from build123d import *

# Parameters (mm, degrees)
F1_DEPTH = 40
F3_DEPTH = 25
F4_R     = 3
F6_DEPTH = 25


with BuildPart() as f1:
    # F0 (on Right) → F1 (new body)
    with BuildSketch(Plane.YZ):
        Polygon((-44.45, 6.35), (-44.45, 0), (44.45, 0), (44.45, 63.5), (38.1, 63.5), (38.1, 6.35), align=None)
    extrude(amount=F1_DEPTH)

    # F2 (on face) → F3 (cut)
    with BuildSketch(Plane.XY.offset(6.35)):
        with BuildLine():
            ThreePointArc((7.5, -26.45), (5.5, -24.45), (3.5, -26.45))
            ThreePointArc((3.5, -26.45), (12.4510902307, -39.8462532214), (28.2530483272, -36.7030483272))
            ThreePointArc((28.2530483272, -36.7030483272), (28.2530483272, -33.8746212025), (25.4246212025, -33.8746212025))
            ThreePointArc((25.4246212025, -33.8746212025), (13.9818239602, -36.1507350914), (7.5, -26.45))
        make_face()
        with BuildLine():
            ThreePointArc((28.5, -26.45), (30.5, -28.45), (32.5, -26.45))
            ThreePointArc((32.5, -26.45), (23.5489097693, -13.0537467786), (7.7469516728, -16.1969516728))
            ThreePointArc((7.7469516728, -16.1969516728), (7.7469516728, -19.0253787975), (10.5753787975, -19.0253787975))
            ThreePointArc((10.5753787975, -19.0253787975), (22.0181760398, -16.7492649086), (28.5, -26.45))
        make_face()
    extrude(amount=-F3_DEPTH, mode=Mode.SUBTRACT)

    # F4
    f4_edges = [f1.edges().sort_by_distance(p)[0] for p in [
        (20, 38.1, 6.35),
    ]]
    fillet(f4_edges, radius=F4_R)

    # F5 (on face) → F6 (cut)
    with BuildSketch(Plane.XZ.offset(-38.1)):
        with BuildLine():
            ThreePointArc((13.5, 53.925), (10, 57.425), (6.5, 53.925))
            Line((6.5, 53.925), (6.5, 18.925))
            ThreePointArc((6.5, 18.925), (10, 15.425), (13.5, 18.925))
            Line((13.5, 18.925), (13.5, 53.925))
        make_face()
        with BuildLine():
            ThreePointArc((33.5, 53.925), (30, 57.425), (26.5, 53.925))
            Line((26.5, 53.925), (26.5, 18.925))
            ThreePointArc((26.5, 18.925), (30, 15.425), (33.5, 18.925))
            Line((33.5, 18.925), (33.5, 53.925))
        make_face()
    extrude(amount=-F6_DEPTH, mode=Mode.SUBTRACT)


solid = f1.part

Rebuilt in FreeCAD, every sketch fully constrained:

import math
import FreeCAD as App
import Part
import Sketcher


def edges_at(feature, points):
    """Names of the edges that pass closest to the given points."""
    edges = feature.Shape.Edges
    near = lambda p: min(range(len(edges)), key=lambda i: edges[i].distToShape(Part.Vertex(*p))[0])
    return sorted({f"Edge{near(p) + 1}" for p in points})

doc = App.newDocument("Part")
body = doc.addObject("PartDesign::Body", "Body")

sketch1 = body.newObject("Sketcher::SketchObject", "Sketch")
sketch1.AttachmentSupport = (doc.getObject("YZ_Plane"), [""])
sketch1.MapMode = "FlatFace"
sketch1.addGeometry([
    Part.LineSegment(App.Vector(-44, 6, 0), App.Vector(-44, 0, 0)),
    Part.LineSegment(App.Vector(-44, 0, 0), App.Vector(44, 0, 0)),
    Part.LineSegment(App.Vector(44, 0, 0), App.Vector(44, 64, 0)),
    Part.LineSegment(App.Vector(44, 64, 0), App.Vector(38, 64, 0)),
    Part.LineSegment(App.Vector(38, 64, 0), App.Vector(38, 6, 0)),
    Part.LineSegment(App.Vector(38, 6, 0), App.Vector(-44, 6, 0)),
], False)
sketch1.addConstraint([
    Sketcher.Constraint("Coincident", 0, 2, 1, 1),
    Sketcher.Constraint("Coincident", 1, 2, 2, 1),
    Sketcher.Constraint("Coincident", 2, 2, 3, 1),
    Sketcher.Constraint("Coincident", 3, 2, 4, 1),
    Sketcher.Constraint("Coincident", 4, 2, 5, 1),
    Sketcher.Constraint("Coincident", 5, 2, 0, 1),
    Sketcher.Constraint("Vertical", 0),
    Sketcher.Constraint("Horizontal", 1),
    Sketcher.Constraint("Vertical", 2),
    Sketcher.Constraint("Horizontal", 3),
    Sketcher.Constraint("Vertical", 4),
    Sketcher.Constraint("Horizontal", 5),
    Sketcher.Constraint("Symmetric", 0, 2, 1, 2, -1, 1),
    Sketcher.Constraint("Equal", 3, 0),
    Sketcher.Constraint("DistanceX", 1, 1, 1, 2, 88.9),
    Sketcher.Constraint("DistanceY", 2, 1, 2, 2, 63.5),
    Sketcher.Constraint("DistanceX", 3, 2, 3, 1, 6.35),
])
pad1 = body.newObject("PartDesign::Pad", "Pad")
pad1.Profile = sketch1
pad1.Length = 40

sketch2 = body.newObject("Sketcher::SketchObject", "Sketch001")
sketch2.AttachmentSupport = (doc.getObject("XY_Plane"), [""])
sketch2.MapMode = "FlatFace"
sketch2.AttachmentOffset = App.Placement(App.Vector(0, 0, 6.35), App.Rotation())
sketch2.addGeometry([
    Part.ArcOfCircle(Part.Circle(App.Vector(5.5, -26.4, 0), App.Vector(0, 0, 1), 2), math.radians(0), math.radians(180)),
    Part.ArcOfCircle(Part.Circle(App.Vector(18, -26.4, 0), App.Vector(0, 0, 1), 14.5), math.radians(180), math.radians(315)),
    Part.ArcOfCircle(Part.Circle(App.Vector(26.8, -35.3, 0), App.Vector(0, 0, 1), 2), math.radians(-45), math.radians(135)),
    Part.ArcOfCircle(Part.Circle(App.Vector(18, -26.4, 0), App.Vector(0, 0, 1), 10.5), math.radians(180), math.radians(315)),
    Part.ArcOfCircle(Part.Circle(App.Vector(30.5, -26.4, 0), App.Vector(0, 0, 1), 2), math.radians(180), math.radians(360)),
    Part.ArcOfCircle(Part.Circle(App.Vector(18, -26.4, 0), App.Vector(0, 0, 1), 14.5), math.radians(0), math.radians(135)),
    Part.ArcOfCircle(Part.Circle(App.Vector(9.2, -17.6, 0), App.Vector(0, 0, 1), 2), math.radians(135), math.radians(315)),
    Part.ArcOfCircle(Part.Circle(App.Vector(18, -26.4, 0), App.Vector(0, 0, 1), 10.5), math.radians(0), math.radians(135)),
], False)
sketch2.addConstraint([
    Sketcher.Constraint("Tangent", 0, 2, 1, 1),
    Sketcher.Constraint("Tangent", 1, 2, 2, 1),
    Sketcher.Constraint("Tangent", 2, 2, 3, 2),
    Sketcher.Constraint("Tangent", 3, 1, 0, 1),
    Sketcher.Constraint("Tangent", 4, 2, 5, 1),
    Sketcher.Constraint("Tangent", 5, 2, 6, 1),
    Sketcher.Constraint("Tangent", 6, 2, 7, 2),
    Sketcher.Constraint("Tangent", 7, 1, 4, 1),
    Sketcher.Constraint("Coincident", 3, 3, 1, 3),
    Sketcher.Constraint("Coincident", 5, 3, 1, 3),
    Sketcher.Constraint("Coincident", 7, 3, 1, 3),
    Sketcher.Constraint("Equal", 2, 4),
    Sketcher.Constraint("Equal", 1, 5),
    Sketcher.Constraint("Horizontal", 0, 3, 1, 3),
    Sketcher.Constraint("Horizontal", 3, 3, 4, 3),
    Sketcher.Constraint("Radius", 0, 2.0),
    Sketcher.Constraint("Radius", 1, 14.5),
    Sketcher.Constraint("DistanceX", -1, 1, 1, 3, 18.0),
    Sketcher.Constraint("DistanceY", 0, 3, -1, 1, 26.45),
    Sketcher.Constraint("DistanceX", -1, 1, 1, 2, 28.253048),
    Sketcher.Constraint("DistanceX", -1, 1, 5, 2, 7.746952),
])
pocket1 = body.newObject("PartDesign::Pocket", "Pocket")
pocket1.Profile = sketch2
pocket1.Length = 25
doc.recompute()

fillet = body.newObject("PartDesign::Fillet", "Fillet")
fillet.Base = (pocket1, edges_at(pocket1, [(20, 38.1, 6.35)]))
fillet.Radius = 3

sketch3 = body.newObject("Sketcher::SketchObject", "Sketch002")
sketch3.AttachmentSupport = (doc.getObject("XZ_Plane"), [""])
sketch3.MapMode = "FlatFace"
sketch3.AttachmentOffset = App.Placement(App.Vector(0, 0, -38.1), App.Rotation())
sketch3.addGeometry([
    Part.ArcOfCircle(Part.Circle(App.Vector(10, 53.9, 0), App.Vector(0, 0, 1), 3.5), math.radians(0), math.radians(180)),
    Part.LineSegment(App.Vector(6.5, 53.9, 0), App.Vector(6.5, 18.9, 0)),
    Part.ArcOfCircle(Part.Circle(App.Vector(10, 18.9, 0), App.Vector(0, 0, 1), 3.5), math.radians(180), math.radians(360)),
    Part.LineSegment(App.Vector(13.5, 18.9, 0), App.Vector(13.5, 53.9, 0)),
    Part.ArcOfCircle(Part.Circle(App.Vector(30, 53.9, 0), App.Vector(0, 0, 1), 3.5), math.radians(0), math.radians(180)),
    Part.LineSegment(App.Vector(26.5, 53.9, 0), App.Vector(26.5, 18.9, 0)),
    Part.ArcOfCircle(Part.Circle(App.Vector(30, 18.9, 0), App.Vector(0, 0, 1), 3.5), math.radians(180), math.radians(360)),
    Part.LineSegment(App.Vector(33.5, 18.9, 0), App.Vector(33.5, 53.9, 0)),
], False)
sketch3.addConstraint([
    Sketcher.Constraint("Tangent", 0, 2, 1, 1),
    Sketcher.Constraint("Tangent", 1, 2, 2, 1),
    Sketcher.Constraint("Tangent", 2, 2, 3, 1),
    Sketcher.Constraint("Tangent", 3, 2, 0, 1),
    Sketcher.Constraint("Tangent", 4, 2, 5, 1),
    Sketcher.Constraint("Tangent", 5, 2, 6, 1),
    Sketcher.Constraint("Tangent", 6, 2, 7, 1),
    Sketcher.Constraint("Tangent", 7, 2, 4, 1),
    Sketcher.Constraint("Vertical", 1),
    Sketcher.Constraint("Vertical", 3),
    Sketcher.Constraint("Vertical", 5),
    Sketcher.Constraint("Vertical", 7),
    Sketcher.Constraint("Equal", 2, 4),
    Sketcher.Constraint("Horizontal", 0, 3, 4, 3),
    Sketcher.Constraint("Horizontal", 2, 3, 6, 3),
    Sketcher.Constraint("Radius", 0, 3.5),
    Sketcher.Constraint("DistanceY", 1, 2, 1, 1, 35.0),
    Sketcher.Constraint("DistanceX", -1, 1, 0, 3, 10.0),
    Sketcher.Constraint("DistanceX", -1, 1, 4, 3, 30.0),
    Sketcher.Constraint("DistanceY", -1, 1, 0, 3, 53.925),
])
pocket2 = body.newObject("PartDesign::Pocket", "Pocket001")
pocket2.Profile = sketch3
pocket2.Length = 25

doc.recompute()
